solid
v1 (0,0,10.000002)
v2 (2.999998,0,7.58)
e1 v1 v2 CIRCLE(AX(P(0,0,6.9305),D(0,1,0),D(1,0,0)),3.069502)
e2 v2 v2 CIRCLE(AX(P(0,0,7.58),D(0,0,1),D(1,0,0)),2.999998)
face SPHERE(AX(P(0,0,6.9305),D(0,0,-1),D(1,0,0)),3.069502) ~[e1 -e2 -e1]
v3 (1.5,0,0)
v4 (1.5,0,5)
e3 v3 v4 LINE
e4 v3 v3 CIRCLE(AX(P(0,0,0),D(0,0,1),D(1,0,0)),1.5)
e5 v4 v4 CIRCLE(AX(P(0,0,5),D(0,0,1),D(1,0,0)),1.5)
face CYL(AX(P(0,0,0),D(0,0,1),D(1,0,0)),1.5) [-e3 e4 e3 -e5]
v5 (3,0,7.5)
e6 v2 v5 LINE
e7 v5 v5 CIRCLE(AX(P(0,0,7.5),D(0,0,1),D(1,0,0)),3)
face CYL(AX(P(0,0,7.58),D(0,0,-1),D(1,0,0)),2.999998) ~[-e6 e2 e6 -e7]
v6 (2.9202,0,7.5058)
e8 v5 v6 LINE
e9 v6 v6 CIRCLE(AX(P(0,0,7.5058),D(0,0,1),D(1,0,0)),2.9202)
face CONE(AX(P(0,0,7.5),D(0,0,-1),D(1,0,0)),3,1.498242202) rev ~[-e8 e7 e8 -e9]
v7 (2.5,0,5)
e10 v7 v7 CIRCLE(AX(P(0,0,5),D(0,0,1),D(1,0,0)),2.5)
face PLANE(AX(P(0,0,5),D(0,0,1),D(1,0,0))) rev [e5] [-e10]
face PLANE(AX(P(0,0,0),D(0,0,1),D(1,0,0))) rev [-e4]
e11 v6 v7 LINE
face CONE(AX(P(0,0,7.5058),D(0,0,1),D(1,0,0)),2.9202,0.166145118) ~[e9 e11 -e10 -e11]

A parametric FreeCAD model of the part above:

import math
import FreeCAD as App
import Part
import Sketcher

V = App.Vector
Q = App.Units.Quantity

doc = App.newDocument("Part")
params = doc.addObject("Spreadsheet::Sheet", "Params")
for row, (alias, value) in enumerate([
    ("sketch1_width", "1 mm"),
    ("sketch1_height", "10 mm"),
    ("sketch1_height2", "5 mm"),
    ("sketch1_width2", "1.5 mm"),
    ("sketch1_height3", "0.08 mm"),
    ("revolution_angle", "360 deg"),
], start=1):
    params.set(f"A{row}", alias)
    params.set(f"B{row}", "=" + value)
    params.setAlias(f"B{row}", alias)

body = doc.addObject("PartDesign::Body", "Body")

sketch1 = doc.addObject("Sketcher::SketchObject", "Sketch")
body.addObject(sketch1)
sketch1.AttachmentSupport = (doc.XZ_Plane, [""])
sketch1.MapMode = "FlatFace"
sketch1.addGeometry(Part.ArcOfCircle(Part.Circle(V(0, 6.93, 0), V(0, 0, 1), 3.07), math.radians(12), math.radians(90)), False)
sketch1.addGeometry(Part.LineSegment(V(0, 10, 0), V(0, 0, 0)), False)
sketch1.addGeometry(Part.LineSegment(V(0, 0, 0), V(1.5, 0, 0)), False)
sketch1.addGeometry(Part.LineSegment(V(1.5, 0, 0), V(1.5, 5, 0)), False)
sketch1.addGeometry(Part.LineSegment(V(1.5, 5, 0), V(2.5, 5, 0)), False)
sketch1.addGeometry(Part.LineSegment(V(2.5, 5, 0), V(2.92, 7.51, 0)), False)
sketch1.addGeometry(Part.LineSegment(V(2.92, 7.51, 0), V(3, 7.5, 0)), False)
sketch1.addGeometry(Part.LineSegment(V(3, 7.5, 0), V(3, 7.58, 0)), False)
sketch1.addConstraint(Sketcher.Constraint("Coincident", 0, 2, 1, 1))
sketch1.addConstraint(Sketcher.Constraint("Coincident", 1, 2, 2, 1))
sketch1.addConstraint(Sketcher.Constraint("Coincident", 2, 2, 3, 1))
sketch1.addConstraint(Sketcher.Constraint("Coincident", 3, 2, 4, 1))
sketch1.addConstraint(Sketcher.Constraint("Coincident", 4, 2, 5, 1))
sketch1.addConstraint(Sketcher.Constraint("Coincident", 5, 2, 6, 1))
sketch1.addConstraint(Sketcher.Constraint("Coincident", 6, 2, 7, 1))
sketch1.addConstraint(Sketcher.Constraint("Coincident", 7, 2, 0, 1))
sketch1.addConstraint(Sketcher.Constraint("Vertical", 1))
sketch1.addConstraint(Sketcher.Constraint("Horizontal", 2))
sketch1.addConstraint(Sketcher.Constraint("Vertical", 3))
sketch1.addConstraint(Sketcher.Constraint("Horizontal", 4))
sketch1.addConstraint(Sketcher.Constraint("Vertical", 7))
sketch1.addConstraint(Sketcher.Constraint("Coincident", 1, 2, -1, 1))
sketch1.addConstraint(Sketcher.Constraint("PointOnObject", 0, 3, -2))
sketch1.addConstraint(Sketcher.Constraint("DistanceX", 4, 1, 4, 2, 1.0))
sketch1.addConstraint(Sketcher.Constraint("DistanceY", 1, 2, 1, 1, 10.0))
sketch1.addConstraint(Sketcher.Constraint("DistanceY", 3, 1, 3, 2, 5.0))
sketch1.addConstraint(Sketcher.Constraint("DistanceX", 2, 1, 2, 2, 1.5))
sketch1.addConstraint(Sketcher.Constraint("DistanceX", -1, 1, 6, 2, 3.0))
sketch1.addConstraint(Sketcher.Constraint("DistanceY", 7, 1, 7, 2, 0.08))
sketch1.addConstraint(Sketcher.Constraint("DistanceY", -1, 1, 6, 2, 7.5))
sketch1.addConstraint(Sketcher.Constraint("Angle", 5, Q("80.4806 deg")))
sketch1.addConstraint(Sketcher.Constraint("Distance", 6, 0.08))
sketch1.setExpression("Constraints[15]", "Params.sketch1_width")
sketch1.setExpression("Constraints[16]", "Params.sketch1_height")
sketch1.setExpression("Constraints[17]", "Params.sketch1_height2")
sketch1.setExpression("Constraints[18]", "Params.sketch1_width2")
sketch1.setExpression("Constraints[20]", "Params.sketch1_height3")
revolution = doc.addObject("PartDesign::Revolution", "Revolution")
body.addObject(revolution)
revolution.Profile = sketch1
revolution.ReferenceAxis = (sketch1, ["V_Axis"])
revolution.setExpression("Angle", "Params.revolution_angle")

doc.recompute()
